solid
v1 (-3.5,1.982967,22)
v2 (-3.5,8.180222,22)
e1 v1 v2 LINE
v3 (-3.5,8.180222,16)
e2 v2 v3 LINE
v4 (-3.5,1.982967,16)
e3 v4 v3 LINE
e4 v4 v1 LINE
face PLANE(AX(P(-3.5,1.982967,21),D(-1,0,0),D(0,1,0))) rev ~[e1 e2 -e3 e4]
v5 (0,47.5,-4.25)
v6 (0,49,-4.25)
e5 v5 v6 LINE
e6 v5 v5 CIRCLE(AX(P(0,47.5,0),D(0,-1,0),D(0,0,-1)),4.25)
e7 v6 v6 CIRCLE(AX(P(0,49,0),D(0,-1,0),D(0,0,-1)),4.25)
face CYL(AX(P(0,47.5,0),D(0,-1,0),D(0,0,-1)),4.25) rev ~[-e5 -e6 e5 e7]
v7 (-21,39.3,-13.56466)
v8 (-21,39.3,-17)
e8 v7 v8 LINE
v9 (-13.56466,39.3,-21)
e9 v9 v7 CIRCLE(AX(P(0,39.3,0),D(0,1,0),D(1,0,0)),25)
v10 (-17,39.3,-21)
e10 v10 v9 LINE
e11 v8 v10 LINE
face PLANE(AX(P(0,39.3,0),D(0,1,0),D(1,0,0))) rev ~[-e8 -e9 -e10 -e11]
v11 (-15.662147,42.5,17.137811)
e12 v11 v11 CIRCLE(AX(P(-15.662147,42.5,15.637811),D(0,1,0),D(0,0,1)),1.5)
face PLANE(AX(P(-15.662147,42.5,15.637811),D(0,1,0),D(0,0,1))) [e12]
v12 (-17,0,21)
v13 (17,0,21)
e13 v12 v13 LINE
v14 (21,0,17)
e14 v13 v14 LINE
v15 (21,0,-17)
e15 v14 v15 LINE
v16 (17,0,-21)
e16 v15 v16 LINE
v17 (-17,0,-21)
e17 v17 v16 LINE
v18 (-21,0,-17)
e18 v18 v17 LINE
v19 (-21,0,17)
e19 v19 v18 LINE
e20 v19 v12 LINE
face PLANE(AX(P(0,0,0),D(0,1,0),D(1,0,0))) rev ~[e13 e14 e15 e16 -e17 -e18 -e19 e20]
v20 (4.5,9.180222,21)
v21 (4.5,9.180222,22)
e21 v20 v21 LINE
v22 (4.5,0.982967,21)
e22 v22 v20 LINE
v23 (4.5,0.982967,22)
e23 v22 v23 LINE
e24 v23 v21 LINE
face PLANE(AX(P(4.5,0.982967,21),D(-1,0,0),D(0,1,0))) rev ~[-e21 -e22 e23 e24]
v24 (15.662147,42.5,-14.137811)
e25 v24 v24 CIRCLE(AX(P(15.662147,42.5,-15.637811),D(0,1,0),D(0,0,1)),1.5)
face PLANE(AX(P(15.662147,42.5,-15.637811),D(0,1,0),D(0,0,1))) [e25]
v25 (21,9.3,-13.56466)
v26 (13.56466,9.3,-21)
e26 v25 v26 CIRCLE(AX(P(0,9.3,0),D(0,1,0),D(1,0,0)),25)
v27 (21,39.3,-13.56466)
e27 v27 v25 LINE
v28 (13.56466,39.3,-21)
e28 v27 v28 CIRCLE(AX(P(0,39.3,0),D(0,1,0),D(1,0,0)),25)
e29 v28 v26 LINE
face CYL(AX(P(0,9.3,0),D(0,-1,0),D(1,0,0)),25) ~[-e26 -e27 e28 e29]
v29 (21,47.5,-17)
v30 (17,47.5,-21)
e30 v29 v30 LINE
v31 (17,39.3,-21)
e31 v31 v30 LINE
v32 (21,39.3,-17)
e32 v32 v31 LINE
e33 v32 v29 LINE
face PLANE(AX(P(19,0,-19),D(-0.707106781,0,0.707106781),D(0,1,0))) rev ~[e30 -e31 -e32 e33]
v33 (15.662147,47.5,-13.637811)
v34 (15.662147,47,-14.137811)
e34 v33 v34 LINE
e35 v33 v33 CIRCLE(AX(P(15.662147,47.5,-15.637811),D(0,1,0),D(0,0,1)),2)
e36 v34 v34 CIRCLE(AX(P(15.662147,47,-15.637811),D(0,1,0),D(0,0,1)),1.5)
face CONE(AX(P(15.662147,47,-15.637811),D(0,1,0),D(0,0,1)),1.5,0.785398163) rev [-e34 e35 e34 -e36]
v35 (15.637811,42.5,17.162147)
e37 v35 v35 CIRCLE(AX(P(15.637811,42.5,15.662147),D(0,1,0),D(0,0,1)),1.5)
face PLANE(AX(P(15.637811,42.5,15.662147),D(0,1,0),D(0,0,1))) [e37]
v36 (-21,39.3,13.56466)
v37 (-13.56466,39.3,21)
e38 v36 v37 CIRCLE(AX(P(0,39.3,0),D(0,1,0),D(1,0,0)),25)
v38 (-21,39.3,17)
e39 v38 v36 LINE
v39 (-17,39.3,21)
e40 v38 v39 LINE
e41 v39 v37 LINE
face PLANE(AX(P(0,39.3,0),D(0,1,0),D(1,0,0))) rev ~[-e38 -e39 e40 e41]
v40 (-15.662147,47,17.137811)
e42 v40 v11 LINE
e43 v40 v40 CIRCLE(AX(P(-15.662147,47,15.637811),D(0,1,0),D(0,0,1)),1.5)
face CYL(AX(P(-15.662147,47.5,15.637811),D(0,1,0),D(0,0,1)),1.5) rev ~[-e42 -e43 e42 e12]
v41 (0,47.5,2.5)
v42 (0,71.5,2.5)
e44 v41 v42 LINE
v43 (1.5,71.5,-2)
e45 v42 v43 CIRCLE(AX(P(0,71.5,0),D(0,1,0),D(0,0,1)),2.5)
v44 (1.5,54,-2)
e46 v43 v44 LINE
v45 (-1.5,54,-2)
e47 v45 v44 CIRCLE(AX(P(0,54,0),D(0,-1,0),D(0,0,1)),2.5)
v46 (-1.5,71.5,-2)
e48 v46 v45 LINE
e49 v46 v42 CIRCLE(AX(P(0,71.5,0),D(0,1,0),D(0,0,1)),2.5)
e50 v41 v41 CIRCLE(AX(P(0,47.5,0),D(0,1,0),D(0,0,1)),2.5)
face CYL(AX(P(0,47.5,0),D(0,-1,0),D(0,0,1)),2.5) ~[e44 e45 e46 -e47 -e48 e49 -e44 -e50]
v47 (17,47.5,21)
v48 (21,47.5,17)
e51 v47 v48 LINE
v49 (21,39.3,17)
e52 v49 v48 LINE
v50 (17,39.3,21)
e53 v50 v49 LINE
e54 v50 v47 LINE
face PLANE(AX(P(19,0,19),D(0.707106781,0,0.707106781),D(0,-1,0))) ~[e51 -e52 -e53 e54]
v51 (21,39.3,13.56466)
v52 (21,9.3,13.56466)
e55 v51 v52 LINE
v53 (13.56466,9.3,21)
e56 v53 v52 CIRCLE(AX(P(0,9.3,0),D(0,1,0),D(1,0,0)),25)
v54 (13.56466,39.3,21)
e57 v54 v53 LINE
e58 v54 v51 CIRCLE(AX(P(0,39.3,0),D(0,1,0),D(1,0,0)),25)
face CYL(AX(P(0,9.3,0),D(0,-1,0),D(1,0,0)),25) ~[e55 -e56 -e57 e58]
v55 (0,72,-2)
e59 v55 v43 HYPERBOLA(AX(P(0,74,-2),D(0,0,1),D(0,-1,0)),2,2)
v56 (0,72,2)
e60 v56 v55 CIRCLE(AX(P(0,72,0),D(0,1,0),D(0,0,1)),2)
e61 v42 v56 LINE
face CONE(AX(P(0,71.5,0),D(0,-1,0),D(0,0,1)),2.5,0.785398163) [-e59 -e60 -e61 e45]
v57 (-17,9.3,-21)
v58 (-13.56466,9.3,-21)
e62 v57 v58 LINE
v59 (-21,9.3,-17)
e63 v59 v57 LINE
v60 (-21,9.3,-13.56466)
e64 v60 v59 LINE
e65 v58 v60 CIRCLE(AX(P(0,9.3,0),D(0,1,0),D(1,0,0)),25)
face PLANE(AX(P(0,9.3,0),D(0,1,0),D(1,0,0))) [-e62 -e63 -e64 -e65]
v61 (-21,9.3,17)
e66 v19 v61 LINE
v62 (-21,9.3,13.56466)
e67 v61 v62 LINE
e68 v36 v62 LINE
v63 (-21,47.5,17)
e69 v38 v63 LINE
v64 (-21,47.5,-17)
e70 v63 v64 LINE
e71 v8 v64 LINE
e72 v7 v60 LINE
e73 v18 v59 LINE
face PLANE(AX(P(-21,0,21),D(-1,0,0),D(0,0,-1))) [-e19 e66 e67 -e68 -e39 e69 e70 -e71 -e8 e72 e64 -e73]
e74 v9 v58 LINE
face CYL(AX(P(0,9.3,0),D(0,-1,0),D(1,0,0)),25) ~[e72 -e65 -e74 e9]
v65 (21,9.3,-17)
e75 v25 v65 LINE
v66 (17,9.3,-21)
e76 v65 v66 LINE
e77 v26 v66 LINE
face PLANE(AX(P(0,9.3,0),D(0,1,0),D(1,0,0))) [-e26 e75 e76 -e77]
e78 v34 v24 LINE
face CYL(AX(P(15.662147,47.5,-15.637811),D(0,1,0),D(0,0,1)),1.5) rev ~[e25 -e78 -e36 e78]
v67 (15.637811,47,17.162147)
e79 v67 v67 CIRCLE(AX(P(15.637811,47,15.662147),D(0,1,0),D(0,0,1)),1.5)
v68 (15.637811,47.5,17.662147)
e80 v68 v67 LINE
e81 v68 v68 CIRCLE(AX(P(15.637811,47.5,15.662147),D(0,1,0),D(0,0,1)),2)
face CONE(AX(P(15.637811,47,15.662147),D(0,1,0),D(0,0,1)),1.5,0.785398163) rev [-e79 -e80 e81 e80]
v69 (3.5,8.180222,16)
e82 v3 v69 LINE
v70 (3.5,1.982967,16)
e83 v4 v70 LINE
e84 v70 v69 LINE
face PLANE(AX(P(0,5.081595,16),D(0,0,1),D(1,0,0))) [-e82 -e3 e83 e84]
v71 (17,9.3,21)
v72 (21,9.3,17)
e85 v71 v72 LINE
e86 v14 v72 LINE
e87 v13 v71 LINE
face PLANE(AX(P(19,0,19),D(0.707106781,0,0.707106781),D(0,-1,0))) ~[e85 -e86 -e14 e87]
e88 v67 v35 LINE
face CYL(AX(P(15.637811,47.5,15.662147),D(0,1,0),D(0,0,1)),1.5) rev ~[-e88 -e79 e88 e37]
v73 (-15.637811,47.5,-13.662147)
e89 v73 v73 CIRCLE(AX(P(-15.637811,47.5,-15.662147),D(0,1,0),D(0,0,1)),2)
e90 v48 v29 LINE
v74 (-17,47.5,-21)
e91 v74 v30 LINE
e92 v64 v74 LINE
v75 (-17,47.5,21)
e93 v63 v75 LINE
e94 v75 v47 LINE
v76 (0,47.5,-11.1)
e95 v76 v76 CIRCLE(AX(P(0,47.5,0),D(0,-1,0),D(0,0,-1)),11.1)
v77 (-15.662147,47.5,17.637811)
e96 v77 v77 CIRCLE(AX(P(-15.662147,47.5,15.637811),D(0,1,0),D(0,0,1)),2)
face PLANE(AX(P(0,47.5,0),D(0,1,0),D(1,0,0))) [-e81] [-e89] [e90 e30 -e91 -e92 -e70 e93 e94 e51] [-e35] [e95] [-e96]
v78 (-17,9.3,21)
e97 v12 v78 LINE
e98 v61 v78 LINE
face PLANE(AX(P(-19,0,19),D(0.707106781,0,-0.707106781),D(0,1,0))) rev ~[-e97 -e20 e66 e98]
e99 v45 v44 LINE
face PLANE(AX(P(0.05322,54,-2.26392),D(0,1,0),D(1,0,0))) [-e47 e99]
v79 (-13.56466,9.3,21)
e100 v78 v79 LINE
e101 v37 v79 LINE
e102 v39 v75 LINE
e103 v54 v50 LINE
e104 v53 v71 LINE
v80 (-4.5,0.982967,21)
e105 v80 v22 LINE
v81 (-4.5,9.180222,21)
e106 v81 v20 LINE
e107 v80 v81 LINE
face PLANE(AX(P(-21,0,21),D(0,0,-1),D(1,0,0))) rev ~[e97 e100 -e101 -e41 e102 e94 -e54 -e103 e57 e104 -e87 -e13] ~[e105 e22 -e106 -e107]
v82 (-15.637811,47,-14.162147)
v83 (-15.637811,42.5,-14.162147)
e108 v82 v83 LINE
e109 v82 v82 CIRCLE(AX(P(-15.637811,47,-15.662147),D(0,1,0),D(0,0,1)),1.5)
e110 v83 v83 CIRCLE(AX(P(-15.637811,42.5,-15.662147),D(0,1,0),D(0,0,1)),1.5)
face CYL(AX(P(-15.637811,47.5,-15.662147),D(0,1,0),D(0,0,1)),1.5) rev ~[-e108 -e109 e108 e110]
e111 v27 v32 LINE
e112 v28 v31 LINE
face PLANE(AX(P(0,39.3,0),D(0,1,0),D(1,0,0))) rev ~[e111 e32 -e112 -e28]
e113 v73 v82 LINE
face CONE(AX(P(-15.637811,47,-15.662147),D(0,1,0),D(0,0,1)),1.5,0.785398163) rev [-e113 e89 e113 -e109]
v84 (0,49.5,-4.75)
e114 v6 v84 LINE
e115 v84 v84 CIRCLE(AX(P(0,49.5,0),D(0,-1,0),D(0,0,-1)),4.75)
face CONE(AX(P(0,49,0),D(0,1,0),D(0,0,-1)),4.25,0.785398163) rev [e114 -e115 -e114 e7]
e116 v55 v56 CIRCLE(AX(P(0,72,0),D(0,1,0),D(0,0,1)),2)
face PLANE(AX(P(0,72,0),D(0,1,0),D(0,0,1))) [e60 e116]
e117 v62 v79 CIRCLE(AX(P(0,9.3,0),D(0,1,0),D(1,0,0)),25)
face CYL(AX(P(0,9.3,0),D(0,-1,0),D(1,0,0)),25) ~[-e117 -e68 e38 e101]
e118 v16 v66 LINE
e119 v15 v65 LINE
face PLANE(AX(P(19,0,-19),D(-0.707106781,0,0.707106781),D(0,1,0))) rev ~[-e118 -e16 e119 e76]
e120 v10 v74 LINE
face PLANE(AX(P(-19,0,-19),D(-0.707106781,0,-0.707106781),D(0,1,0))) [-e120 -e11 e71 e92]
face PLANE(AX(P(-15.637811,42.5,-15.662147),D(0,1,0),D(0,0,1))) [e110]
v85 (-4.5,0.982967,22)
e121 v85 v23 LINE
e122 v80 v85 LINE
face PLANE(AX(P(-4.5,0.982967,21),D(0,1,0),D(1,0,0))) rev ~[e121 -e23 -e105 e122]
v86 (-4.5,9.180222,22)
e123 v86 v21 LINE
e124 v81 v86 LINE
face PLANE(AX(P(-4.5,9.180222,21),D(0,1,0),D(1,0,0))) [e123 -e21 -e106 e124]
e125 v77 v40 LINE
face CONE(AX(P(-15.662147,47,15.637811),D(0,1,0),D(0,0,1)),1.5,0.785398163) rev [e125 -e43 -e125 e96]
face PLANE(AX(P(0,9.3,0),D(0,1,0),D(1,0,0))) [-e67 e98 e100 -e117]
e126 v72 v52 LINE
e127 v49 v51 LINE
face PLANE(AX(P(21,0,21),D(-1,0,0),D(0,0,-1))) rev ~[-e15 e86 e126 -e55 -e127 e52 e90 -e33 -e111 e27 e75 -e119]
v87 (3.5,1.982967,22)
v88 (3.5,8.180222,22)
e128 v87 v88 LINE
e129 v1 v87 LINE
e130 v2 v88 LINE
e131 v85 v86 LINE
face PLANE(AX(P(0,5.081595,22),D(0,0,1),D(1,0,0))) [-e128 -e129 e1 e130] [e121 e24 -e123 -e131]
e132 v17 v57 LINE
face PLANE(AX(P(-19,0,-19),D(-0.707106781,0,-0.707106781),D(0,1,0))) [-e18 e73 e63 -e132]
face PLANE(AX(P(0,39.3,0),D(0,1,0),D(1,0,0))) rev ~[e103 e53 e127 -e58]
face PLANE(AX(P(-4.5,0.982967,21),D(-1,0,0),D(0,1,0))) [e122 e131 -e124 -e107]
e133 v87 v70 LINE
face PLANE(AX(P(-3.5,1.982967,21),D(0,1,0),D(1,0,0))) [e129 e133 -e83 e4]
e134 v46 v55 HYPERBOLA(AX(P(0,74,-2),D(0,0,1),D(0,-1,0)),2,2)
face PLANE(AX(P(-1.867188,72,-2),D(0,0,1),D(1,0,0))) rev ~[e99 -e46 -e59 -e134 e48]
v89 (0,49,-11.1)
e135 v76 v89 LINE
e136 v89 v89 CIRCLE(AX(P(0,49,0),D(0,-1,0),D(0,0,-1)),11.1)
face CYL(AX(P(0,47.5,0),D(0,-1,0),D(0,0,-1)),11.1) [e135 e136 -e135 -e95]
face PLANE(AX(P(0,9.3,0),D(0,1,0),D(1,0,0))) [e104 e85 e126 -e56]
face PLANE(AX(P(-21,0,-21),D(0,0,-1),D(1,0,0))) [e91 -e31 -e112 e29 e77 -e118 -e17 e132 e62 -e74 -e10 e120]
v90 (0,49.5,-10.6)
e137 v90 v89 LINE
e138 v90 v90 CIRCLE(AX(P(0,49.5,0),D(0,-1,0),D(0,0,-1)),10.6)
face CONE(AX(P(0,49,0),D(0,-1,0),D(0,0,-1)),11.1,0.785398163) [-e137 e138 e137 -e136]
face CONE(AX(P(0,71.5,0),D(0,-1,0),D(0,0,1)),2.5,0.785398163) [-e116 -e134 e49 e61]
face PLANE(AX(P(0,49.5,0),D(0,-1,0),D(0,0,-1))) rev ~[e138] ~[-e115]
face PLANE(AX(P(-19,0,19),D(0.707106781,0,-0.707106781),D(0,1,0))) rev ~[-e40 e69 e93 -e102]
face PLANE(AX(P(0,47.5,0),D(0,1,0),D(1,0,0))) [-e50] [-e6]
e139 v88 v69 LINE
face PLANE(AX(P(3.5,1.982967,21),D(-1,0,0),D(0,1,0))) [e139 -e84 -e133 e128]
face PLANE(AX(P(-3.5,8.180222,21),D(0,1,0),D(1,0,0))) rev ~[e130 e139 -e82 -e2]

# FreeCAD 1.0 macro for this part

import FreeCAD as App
import Part
import Sketcher

V = App.Vector


def edges_at(feature, points):
    """Names of the edges that pass closest to the given points."""
    edges = feature.Shape.Edges
    near = lambda p: min(range(len(edges)), key=lambda i: edges[i].distToShape(Part.Vertex(*p))[0])
    return sorted({f"Edge{near(p) + 1}" for p in points})

doc = App.newDocument("Part")
body = doc.addObject("PartDesign::Body", "Body")

sketch1 = body.newObject("Sketcher::SketchObject", "Sketch")
sketch1.AttachmentSupport = (doc.getObject("XZ_Plane"), [""])
sketch1.MapMode = "FlatFace"
sketch1.addGeometry([
    Part.LineSegment(V(-21, -21, 0), V(-21, 21, 0)),
    Part.LineSegment(V(-21, 21, 0), V(21, 21, 0)),
    Part.LineSegment(V(21, 21, 0), V(21, -21, 0)),
    Part.LineSegment(V(21, -21, 0), V(-21, -21, 0)),
], False)
sketch1.addConstraint([
    Sketcher.Constraint("Coincident", 0, 2, 1, 1),
    Sketcher.Constraint("Coincident", 1, 2, 2, 1),
    Sketcher.Constraint("Coincident", 2, 2, 3, 1),
    Sketcher.Constraint("Coincident", 3, 2, 0, 1),
    Sketcher.Constraint("Vertical", 0),
    Sketcher.Constraint("Horizontal", 1),
    Sketcher.Constraint("Vertical", 2),
    Sketcher.Constraint("Horizontal", 3),
    Sketcher.Constraint("Symmetric", 0, 2, 2, 2, -1, 1),
    Sketcher.Constraint("Equal", 3, 0),
    Sketcher.Constraint("DistanceX", 1, 1, 1, 2, 42.0),
])
pad1 = body.newObject("PartDesign::Pad", "Pad")
pad1.Profile = sketch1
pad1.Length = 47.5
pad1.Reversed = True
doc.recompute()

chamfer = body.newObject("PartDesign::Chamfer", "Chamfer")
chamfer.Base = (pad1, edges_at(pad1, [
    (21, 23.75, 21),
    (-21, 23.75, 21),
    (-21, 23.75, -21),
    (21, 23.75, -21),
]))
chamfer.Size = 4

sketch2 = body.newObject("Sketcher::SketchObject", "Sketch001")
sketch2.AttachmentSupport = (doc.getObject("XZ_Plane"), [""])
sketch2.MapMode = "FlatFace"
sketch2.AttachmentOffset = App.Placement(V(0, 0, -47.5), App.Rotation())
sketch2.addGeometry([
    Part.Circle(V(0, 0, 0), V(0, 0, 1), 11.1),
    Part.Circle(V(0, 0, 0), V(0, 0, 1), 4.2),
], False)
sketch2.addConstraint([
    Sketcher.Constraint("Coincident", 0, 3, -1, 1),
    Sketcher.Constraint("Coincident", 1, 3, -1, 1),
    Sketcher.Constraint("Diameter", 0, 22.2),
    Sketcher.Constraint("Diameter", 1, 8.5),
])
pad2 = body.newObject("PartDesign::Pad", "Pad001")
pad2.Profile = sketch2
pad2.Length = 2
pad2.Reversed = True

sketch3 = body.newObject("Sketcher::SketchObject", "Sketch002")
sketch3.AttachmentSupport = (doc.getObject("XZ_Plane"), [""])
sketch3.MapMode = "FlatFace"
sketch3.AttachmentOffset = App.Placement(V(0, 0, -47.5), App.Rotation())
sketch3.addGeometry(Part.Circle(V(0, 0, 0), V(0, 0, 1), 2.5), False)
sketch3.addConstraint([
    Sketcher.Constraint("Coincident", 0, 3, -1, 1),
    Sketcher.Constraint("Diameter", 0, 5.0),
])
pad3 = body.newObject("PartDesign::Pad", "Pad002")
pad3.Profile = sketch3
pad3.Length = 24.5
pad3.Reversed = True
doc.recompute()

chamfer2 = body.newObject("PartDesign::Chamfer", "Chamfer001")
chamfer2.Base = (pad3, edges_at(pad3, [(0, 72, -2.5)]))
chamfer2.Size = 0.5

sketch4 = body.newObject("Sketcher::SketchObject", "Sketch003")
sketch4.AttachmentSupport = (doc.getObject("XZ_Plane"), [""])
sketch4.MapMode = "FlatFace"
sketch4.AttachmentOffset = App.Placement(V(0, 0, -72), App.Rotation())
sketch4.addGeometry([
    Part.LineSegment(V(-1.9, -2, 0), V(2, -2, 0)),
    Part.LineSegment(V(2, -2, 0), V(0.1, -3, 0)),
    Part.LineSegment(V(0.1, -3, 0), V(-1.9, -2, 0)),
], False)
sketch4.addConstraint([
    Sketcher.Constraint("Coincident", 0, 2, 1, 1),
    Sketcher.Constraint("Coincident", 1, 2, 2, 1),
    Sketcher.Constraint("Coincident", 2, 2, 0, 1),
    Sketcher.Constraint("Horizontal", 0),
    Sketcher.Constraint("Equal", 1, 2),
    Sketcher.Constraint("DistanceY", 0, 2, -1, 1, 2.0),
    Sketcher.Constraint("Distance", 1, 2.163498),
    Sketcher.Constraint("DistanceX", 0, 1, 0, 2, 3.840817),
    Sketcher.Constraint("DistanceX", -1, 1, 0, 2, 1.973628),
])
pocket1 = body.newObject("PartDesign::Pocket", "Pocket")
pocket1.Profile = sketch4
pocket1.Length = 18
pocket1.Reversed = True

sketch5 = body.newObject("Sketcher::SketchObject", "Sketch004")
sketch5.AttachmentSupport = (doc.getObject("XZ_Plane"), [""])
sketch5.MapMode = "FlatFace"
sketch5.AttachmentOffset = App.Placement(V(0, 0, -47.5), App.Rotation())
sketch5.addGeometry([
    Part.Circle(V(-15.6, -15.7, 0), V(0, 0, 1), 1.5),
    Part.Circle(V(15.7, -15.6, 0), V(0, 0, 1), 1.5),
    Part.Circle(V(15.6, 15.7, 0), V(0, 0, 1), 1.5),
    Part.Circle(V(-15.7, 15.6, 0), V(0, 0, 1), 1.5),
], False)
sketch5.addConstraint([
    Sketcher.Constraint("Equal", 0, 1),
    Sketcher.Constraint("Equal", 1, 2),
    Sketcher.Constraint("Equal", 2, 3),
    Sketcher.Constraint("Symmetric", 0, 3, 2, 3, -1, 1),
    Sketcher.Constraint("Symmetric", 1, 3, 3, 3, -1, 1),
    Sketcher.Constraint("Diameter", 0, 3.0),
    Sketcher.Constraint("DistanceX", 0, 3, -1, 1, 15.637811),
    Sketcher.Constraint("DistanceY", 1, 3, -1, 1, 15.637811),
    Sketcher.Constraint("DistanceY", 0, 3, -1, 1, 15.662147),
    Sketcher.Constraint("DistanceX", -1, 1, 1, 3, 15.662147),
])
pocket2 = body.newObject("PartDesign::Pocket", "Pocket001")
pocket2.Profile = sketch5
pocket2.Length = 5
pocket2.Reversed = True

sketch6 = body.newObject("Sketcher::SketchObject", "Sketch005")
sketch6.AttachmentSupport = (doc.getObject("XZ_Plane"), [""])
sketch6.MapMode = "FlatFace"
sketch6.AttachmentOffset = App.Placement(V(0, 0, -9.3), App.Rotation())
sketch6.addGeometry([
    Part.Circle(V(0, 0, 0), V(0, 0, 1), 37),
    Part.Circle(V(0, 0, 0), V(0, 0, 1), 25),
], False)
sketch6.addConstraint([
    Sketcher.Constraint("Coincident", 0, 3, -1, 1),
    Sketcher.Constraint("Coincident", 1, 3, -1, 1),
    Sketcher.Constraint("Diameter", 1, 50.0),
    Sketcher.Constraint("Diameter", 0, 73.70461),
])
pocket3 = body.newObject("PartDesign::Pocket", "Pocket002")
pocket3.Profile = sketch6
pocket3.Length = 30

sketch7 = body.newObject("Sketcher::SketchObject", "Sketch006")
sketch7.AttachmentSupport = (doc.getObject("XY_Plane"), [""])
sketch7.MapMode = "FlatFace"
sketch7.AttachmentOffset = App.Placement(V(0, 0, 21), App.Rotation())
sketch7.addGeometry([
    Part.LineSegment(V(-4, 9, 0), V(-4, 1, 0)),
    Part.LineSegment(V(-4, 1, 0), V(4, 1, 0)),
    Part.LineSegment(V(4, 1, 0), V(4, 9, 0)),
    Part.LineSegment(V(4, 9, 0), V(-4, 9, 0)),
    Part.LineSegment(V(4, 2, 0), V(-4, 2, 0)),
    Part.LineSegment(V(-4, 2, 0), V(-4, 8, 0)),
    Part.LineSegment(V(-4, 8, 0), V(4, 8, 0)),
    Part.LineSegment(V(4, 8, 0), V(4, 2, 0)),
], False)
sketch7.addConstraint([
    Sketcher.Constraint("Coincident", 0, 2, 1, 1),
    Sketcher.Constraint("Coincident", 1, 2, 2, 1),
    Sketcher.Constraint("Coincident", 2, 2, 3, 1),
    Sketcher.Constraint("Coincident", 3, 2, 0, 1),
    Sketcher.Constraint("Coincident", 4, 2, 5, 1),
    Sketcher.Constraint("Coincident", 5, 2, 6, 1),
    Sketcher.Constraint("Coincident", 6, 2, 7, 1),
    Sketcher.Constraint("Coincident", 7, 2, 4, 1),
    Sketcher.Constraint("Vertical", 0),
    Sketcher.Constraint("Horizontal", 1),
    Sketcher.Constraint("Vertical", 2),
    Sketcher.Constraint("Horizontal", 3),
    Sketcher.Constraint("Horizontal", 4),
    Sketcher.Constraint("Vertical", 5),
    Sketcher.Constraint("Horizontal", 6),
    Sketcher.Constraint("Vertical", 7),
    Sketcher.Constraint("DistanceX", 1, 1, 1, 2, 9.0),
    Sketcher.Constraint("DistanceX", 4, 2, 4, 1, 7.0),
    Sketcher.Constraint("DistanceX", 0, 2, 4, 2, 1.0),
    Sketcher.Constraint("DistanceY", 0, 2, 4, 2, 1.0),
    Sketcher.Constraint("DistanceY", 5, 2, 3, 2, 1.0),
    Sketcher.Constraint("DistanceX", 0, 2, -1, 1, 4.5),
    Sketcher.Constraint("DistanceY", 0, 2, 0, 1, 8.197255),
    Sketcher.Constraint("DistanceY", -1, 1, 2, 2, 9.180222),
])
pad4 = body.newObject("PartDesign::Pad", "Pad003")
pad4.Profile = sketch7
pad4.Length = 1

sketch8 = body.newObject("Sketcher::SketchObject", "Sketch007")
sketch8.AttachmentSupport = (doc.getObject("XY_Plane"), [""])
sketch8.MapMode = "FlatFace"
sketch8.AttachmentOffset = App.Placement(V(0, 0, 21), App.Rotation())
sketch8.addGeometry([
    Part.LineSegment(V(-4, 8, 0), V(-4, 2, 0)),
    Part.LineSegment(V(-4, 2, 0), V(4, 2, 0)),
    Part.LineSegment(V(4, 2, 0), V(4, 8, 0)),
    Part.LineSegment(V(4, 8, 0), V(-4, 8, 0)),
], False)
sketch8.addConstraint([
    Sketcher.Constraint("Coincident", 0, 2, 1, 1),
    Sketcher.Constraint("Coincident", 1, 2, 2, 1),
    Sketcher.Constraint("Coincident", 2, 2, 3, 1),
    Sketcher.Constraint("Coincident", 3, 2, 0, 1),
    Sketcher.Constraint("Vertical", 0),
    Sketcher.Constraint("Horizontal", 1),
    Sketcher.Constraint("Vertical", 2),
    Sketcher.Constraint("Horizontal", 3),
    Sketcher.Constraint("DistanceX", 1, 1, 1, 2, 7.0),
    Sketcher.Constraint("DistanceX", 0, 2, -1, 1, 3.5),
    Sketcher.Constraint("DistanceY", 0, 2, 0, 1, 6.197255),
    Sketcher.Constraint("DistanceY", -1, 1, 2, 2, 8.180222),
])
pocket4 = body.newObject("PartDesign::Pocket", "Pocket003")
pocket4.Profile = sketch8
pocket4.Length = 5
doc.recompute()

chamfer3 = body.newObject("PartDesign::Chamfer", "Chamfer002")
chamfer3.Base = (pocket4, edges_at(pocket4, [
    (0, 49.5, 11.1),
    (0, 49.5, 4.25),
    (-15.638, 47.5, -17.162),
    (15.662, 47.5, -17.138),
    (15.638, 47.5, 14.162),
    (-15.662, 47.5, 14.138),
]))
chamfer3.Size = 0.5

doc.recompute()
